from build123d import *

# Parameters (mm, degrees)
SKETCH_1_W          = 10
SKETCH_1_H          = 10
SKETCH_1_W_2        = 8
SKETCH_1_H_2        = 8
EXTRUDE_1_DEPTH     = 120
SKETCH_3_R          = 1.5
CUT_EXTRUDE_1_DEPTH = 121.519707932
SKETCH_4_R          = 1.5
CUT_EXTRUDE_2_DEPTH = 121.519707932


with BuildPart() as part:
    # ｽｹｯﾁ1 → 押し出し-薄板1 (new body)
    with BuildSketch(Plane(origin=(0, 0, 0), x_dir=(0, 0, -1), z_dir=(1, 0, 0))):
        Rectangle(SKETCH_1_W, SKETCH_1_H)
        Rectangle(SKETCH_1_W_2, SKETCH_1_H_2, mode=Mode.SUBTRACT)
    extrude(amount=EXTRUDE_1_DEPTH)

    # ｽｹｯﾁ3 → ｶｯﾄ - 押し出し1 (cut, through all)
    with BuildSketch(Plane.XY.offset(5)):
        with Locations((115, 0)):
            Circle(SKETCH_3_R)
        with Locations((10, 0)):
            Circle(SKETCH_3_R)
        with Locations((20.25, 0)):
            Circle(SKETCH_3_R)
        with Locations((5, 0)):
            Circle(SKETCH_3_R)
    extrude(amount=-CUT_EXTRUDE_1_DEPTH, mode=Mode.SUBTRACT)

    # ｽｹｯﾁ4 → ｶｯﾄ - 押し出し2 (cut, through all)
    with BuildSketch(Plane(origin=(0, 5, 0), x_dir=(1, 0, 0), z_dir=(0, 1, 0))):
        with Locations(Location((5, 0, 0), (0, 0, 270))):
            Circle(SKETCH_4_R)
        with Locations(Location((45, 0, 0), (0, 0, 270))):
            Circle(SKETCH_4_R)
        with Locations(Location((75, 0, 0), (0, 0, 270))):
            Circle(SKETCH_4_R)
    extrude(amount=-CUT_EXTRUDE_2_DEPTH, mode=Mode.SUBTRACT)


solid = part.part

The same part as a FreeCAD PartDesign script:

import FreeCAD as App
import Part
import Sketcher
from FreeCAD import Vector


def add_polygon(sketch, points):
    """Adds a closed chain of lines whose ends are joined by coincident constraints."""
    first, n = sketch.GeometryCount, len(points)
    for a, b in zip(points, points[1:] + points[:1]):
        sketch.addGeometry(Part.LineSegment(App.Vector(*a, 0), App.Vector(*b, 0)), False)
    for i in range(n):
        sketch.addConstraint(Sketcher.Constraint("Coincident", first + i, 2, first + (i + 1) % n, 1))

doc = App.newDocument("Part")
params = doc.addObject("Spreadsheet::Sheet", "Params")
for row, (alias, value) in enumerate([
    ("sketch1_width", "10 mm"),
    ("sketch1_width2", "8 mm"),
    ("pad1_length", "120 mm"),
    ("sketch2_diameter", "3 mm"),
    ("sketch3_diameter", "3 mm"),
], start=1):
    params.set(f"A{row}", alias)
    params.set(f"B{row}", "=" + value)
    params.setAlias(f"B{row}", alias)

body = doc.addObject("PartDesign::Body", "Body")

# Sketch on YZ plane
sketch1 = doc.addObject("Sketcher::SketchObject", "Sketch")
body.addObject(sketch1)
sketch1.AttachmentSupport = (doc.YZ_Plane, [""])
sketch1.MapMode = "FlatFace"
add_polygon(sketch1, [(5, 5), (-5, 5), (-5, -5), (5, -5)])  # lines 0-3
add_polygon(sketch1, [(-4, -4), (-4, 4), (4, 4), (4, -4)])  # lines 4-7
sketch1.addConstraint([
    Sketcher.Constraint("Horizontal", 0),
    Sketcher.Constraint("Vertical", 1),
    Sketcher.Constraint("Horizontal", 2),
    Sketcher.Constraint("Vertical", 3),
    Sketcher.Constraint("Vertical", 4),
    Sketcher.Constraint("Horizontal", 5),
    Sketcher.Constraint("Vertical", 6),
    Sketcher.Constraint("Horizontal", 7),
    Sketcher.Constraint("Symmetric", 0, 2, 2, 2, -1, 1),
    Sketcher.Constraint("Symmetric", 4, 2, 6, 2, -1, 1),
    Sketcher.Constraint("Equal", 2, 1),
    Sketcher.Constraint("Equal", 7, 4),
    Sketcher.Constraint("DistanceX", 0, 2, 0, 1, 10.0),
    Sketcher.Constraint("DistanceX", 5, 1, 5, 2, 8.0),
])
sketch1.setExpression("Constraints[20]", "Params.sketch1_width")
sketch1.setExpression("Constraints[21]", "Params.sketch1_width2")
pad1 = doc.addObject("PartDesign::Pad", "Pad")
body.addObject(pad1)
pad1.Profile = sketch1
pad1.setExpression("Length", "Params.pad1_length")

# Sketch on XY plane
sketch2 = doc.addObject("Sketcher::SketchObject", "Sketch001")
body.addObject(sketch2)
sketch2.AttachmentSupport = (doc.XY_Plane, [""])
sketch2.MapMode = "FlatFace"
sketch2.AttachmentOffset = App.Placement(Vector(0, 0, 5), App.Rotation())
sketch2.addGeometry([
    Part.Circle(Vector(115, 0, 0), Vector(0, 0, 1), 1.5),
    Part.Circle(Vector(10, 0, 0), Vector(0, 0, 1), 1.5),
    Part.Circle(Vector(20.2, 0, 0), Vector(0, 0, 1), 1.5),
    Part.Circle(Vector(5, 0, 0), Vector(0, 0, 1), 1.5),
], False)
sketch2.addConstraint([
    Sketcher.Constraint("Equal", 0, 1),
    Sketcher.Constraint("Equal", 1, 2),
    Sketcher.Constraint("Equal", 2, 3),
    Sketcher.Constraint("PointOnObject", 0, 3, -1),
    Sketcher.Constraint("PointOnObject", 1, 3, -1),
    Sketcher.Constraint("PointOnObject", 2, 3, -1),
    Sketcher.Constraint("PointOnObject", 3, 3, -1),
    Sketcher.Constraint("Diameter", 0, 3.0),
    Sketcher.Constraint("DistanceX", -1, 1, 0, 3, 115.0),
    Sketcher.Constraint("DistanceX", -1, 1, 1, 3, 10.0),
    Sketcher.Constraint("DistanceX", -1, 1, 3, 3, 5.0),
    Sketcher.Constraint("DistanceX", -1, 1, 2, 3, 20.25),
])
sketch2.setExpression("Constraints[7]", "Params.sketch2_diameter")
pocket1 = doc.addObject("PartDesign::Pocket", "Pocket")
body.addObject(pocket1)
pocket1.Profile = sketch2
pocket1.Type = "ThroughAll"

# Sketch on XZ plane
sketch3 = doc.addObject("Sketcher::SketchObject", "Sketch002")
body.addObject(sketch3)
sketch3.AttachmentSupport = (doc.XZ_Plane, [""])
sketch3.MapMode = "FlatFace"
sketch3.AttachmentOffset = App.Placement(Vector(0, 0, -5), App.Rotation())
sketch3.addGeometry([
    Part.Circle(Vector(5, 0, 0), Vector(0, 0, 1), 1.5),
    Part.Circle(Vector(45, 0, 0), Vector(0, 0, 1), 1.5),
    Part.Circle(Vector(75, 0, 0), Vector(0, 0, 1), 1.5),
], False)
sketch3.addConstraint([
    Sketcher.Constraint("Equal", 0, 1),
    Sketcher.Constraint("Equal", 1, 2),
    Sketcher.Constraint("PointOnObject", 0, 3, -1),
    Sketcher.Constraint("PointOnObject", 1, 3, -1),
    Sketcher.Constraint("PointOnObject", 2, 3, -1),
    Sketcher.Constraint("Diameter", 0, 3.0),
    Sketcher.Constraint("DistanceX", -1, 1, 0, 3, 5.0),
    Sketcher.Constraint("DistanceX", -1, 1, 1, 3, 45.0),
    Sketcher.Constraint("DistanceX", -1, 1, 2, 3, 75.0),
])
sketch3.setExpression("Constraints[5]", "Params.sketch3_diameter")
pocket2 = doc.addObject("PartDesign::Pocket", "Pocket001")
body.addObject(pocket2)
pocket2.Profile = sketch3
pocket2.Type = "ThroughAll"
pocket2.Reversed = True

doc.recompute()
